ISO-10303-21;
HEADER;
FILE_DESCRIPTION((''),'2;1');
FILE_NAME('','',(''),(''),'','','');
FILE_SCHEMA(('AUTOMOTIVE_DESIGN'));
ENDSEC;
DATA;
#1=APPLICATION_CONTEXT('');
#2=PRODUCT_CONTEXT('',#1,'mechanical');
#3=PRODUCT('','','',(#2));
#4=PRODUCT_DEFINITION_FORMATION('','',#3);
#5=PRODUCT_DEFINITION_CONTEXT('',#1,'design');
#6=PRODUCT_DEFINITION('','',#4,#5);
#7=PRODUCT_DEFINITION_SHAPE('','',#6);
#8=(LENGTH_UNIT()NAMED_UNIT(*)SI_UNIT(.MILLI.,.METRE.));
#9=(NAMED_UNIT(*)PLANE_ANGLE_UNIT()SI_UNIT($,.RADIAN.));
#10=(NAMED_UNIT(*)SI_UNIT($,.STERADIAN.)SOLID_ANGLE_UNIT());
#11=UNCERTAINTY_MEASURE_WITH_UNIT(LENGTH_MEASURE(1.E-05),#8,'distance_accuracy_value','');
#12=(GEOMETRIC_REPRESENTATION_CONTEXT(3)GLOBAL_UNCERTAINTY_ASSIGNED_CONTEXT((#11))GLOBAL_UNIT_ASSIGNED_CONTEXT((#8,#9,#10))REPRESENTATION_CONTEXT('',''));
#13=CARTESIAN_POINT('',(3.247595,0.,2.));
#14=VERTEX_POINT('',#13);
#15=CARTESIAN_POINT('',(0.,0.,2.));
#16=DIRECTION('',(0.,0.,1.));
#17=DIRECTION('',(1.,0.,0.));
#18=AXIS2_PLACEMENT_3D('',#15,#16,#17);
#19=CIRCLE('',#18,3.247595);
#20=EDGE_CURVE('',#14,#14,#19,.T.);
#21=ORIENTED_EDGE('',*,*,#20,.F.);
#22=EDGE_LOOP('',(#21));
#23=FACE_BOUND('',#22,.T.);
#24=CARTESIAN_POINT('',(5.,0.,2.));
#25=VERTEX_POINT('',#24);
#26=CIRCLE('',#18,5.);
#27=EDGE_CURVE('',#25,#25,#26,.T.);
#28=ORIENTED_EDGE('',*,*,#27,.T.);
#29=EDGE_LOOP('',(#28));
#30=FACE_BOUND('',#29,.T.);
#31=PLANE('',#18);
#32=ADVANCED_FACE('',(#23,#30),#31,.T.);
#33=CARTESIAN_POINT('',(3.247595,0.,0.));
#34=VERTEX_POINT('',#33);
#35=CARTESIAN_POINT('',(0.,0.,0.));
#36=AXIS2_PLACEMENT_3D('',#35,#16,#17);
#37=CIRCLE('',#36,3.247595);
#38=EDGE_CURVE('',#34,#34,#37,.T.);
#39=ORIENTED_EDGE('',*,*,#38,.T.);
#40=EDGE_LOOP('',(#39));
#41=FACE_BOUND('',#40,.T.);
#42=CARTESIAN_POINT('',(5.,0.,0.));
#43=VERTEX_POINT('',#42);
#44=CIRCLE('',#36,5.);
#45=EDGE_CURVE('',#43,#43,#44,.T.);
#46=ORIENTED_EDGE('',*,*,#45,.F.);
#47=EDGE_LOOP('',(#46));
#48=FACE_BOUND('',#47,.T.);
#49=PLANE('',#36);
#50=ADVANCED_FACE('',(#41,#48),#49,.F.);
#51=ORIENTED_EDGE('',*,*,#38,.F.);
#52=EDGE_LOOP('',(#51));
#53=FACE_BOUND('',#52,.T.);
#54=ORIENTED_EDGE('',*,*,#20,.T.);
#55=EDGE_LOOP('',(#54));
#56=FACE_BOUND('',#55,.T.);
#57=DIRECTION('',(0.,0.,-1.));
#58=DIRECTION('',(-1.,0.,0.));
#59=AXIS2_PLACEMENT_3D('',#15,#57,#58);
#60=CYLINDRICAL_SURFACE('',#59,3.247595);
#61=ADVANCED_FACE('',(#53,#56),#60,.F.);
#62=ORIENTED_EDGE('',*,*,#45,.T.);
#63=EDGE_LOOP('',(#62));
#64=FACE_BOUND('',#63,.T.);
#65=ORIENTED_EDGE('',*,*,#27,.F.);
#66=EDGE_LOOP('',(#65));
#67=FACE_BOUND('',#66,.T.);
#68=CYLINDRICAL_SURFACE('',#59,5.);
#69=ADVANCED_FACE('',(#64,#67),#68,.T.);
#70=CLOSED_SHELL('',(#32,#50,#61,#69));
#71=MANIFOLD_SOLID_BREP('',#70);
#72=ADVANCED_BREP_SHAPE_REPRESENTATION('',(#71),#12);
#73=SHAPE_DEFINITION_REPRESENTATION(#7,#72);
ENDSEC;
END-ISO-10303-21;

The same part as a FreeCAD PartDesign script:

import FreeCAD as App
import Part
import Sketcher
from FreeCAD import Vector
Q = App.Units.Quantity

doc = App.newDocument("Part")
body = doc.addObject("PartDesign::Body", "Body")

sketch1 = body.newObject("Sketcher::SketchObject", "Sketch")
sketch1.AttachmentSupport = (doc.getObject("XY_Plane"), [""])
sketch1.MapMode = "FlatFace"
sketch1.addGeometry(Part.Circle(Vector(0, 0, 0), Vector(0, 0, 1), 5), False)
sketch1.addGeometry(Part.Circle(Vector(0, 0, 0), Vector(0, 0, 1), 3.2), False)
sketch1.addConstraint(Sketcher.Constraint("Coincident", 0, 3, -1, 1))
sketch1.addConstraint(Sketcher.Constraint("Coincident", 1, 3, -1, 1))
sketch1.addConstraint(Sketcher.Constraint("Diameter", 0, Q("10 mm")))
sketch1.addConstraint(Sketcher.Constraint("Diameter", 1, Q("6.495191 mm")))
pad1 = body.newObject("PartDesign::Pad", "Pad")
pad1.Profile = sketch1
pad1.Length = 2

doc.recompute()
